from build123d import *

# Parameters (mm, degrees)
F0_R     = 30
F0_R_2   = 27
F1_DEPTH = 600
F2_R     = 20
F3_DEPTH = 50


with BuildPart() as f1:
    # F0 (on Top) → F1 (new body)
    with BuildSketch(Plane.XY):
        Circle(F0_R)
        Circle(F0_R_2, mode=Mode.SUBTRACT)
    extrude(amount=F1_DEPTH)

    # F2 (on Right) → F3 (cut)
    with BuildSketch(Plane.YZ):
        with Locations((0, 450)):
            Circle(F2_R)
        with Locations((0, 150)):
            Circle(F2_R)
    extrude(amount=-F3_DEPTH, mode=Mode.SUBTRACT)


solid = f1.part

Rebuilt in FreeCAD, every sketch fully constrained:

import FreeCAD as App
import Part
import Sketcher
from FreeCAD import Vector

doc = App.newDocument("Part")
params = doc.addObject("Spreadsheet::Sheet", "Params")
for row, (alias, value) in enumerate([
    ("sketch1_diameter", "60 mm"),
    ("sketch1_diameter2", "54 mm"),
    ("pad1_length", "600 mm"),
    ("sketch2_diameter", "40 mm"),
    ("pocket1_length", "50 mm"),
], start=1):
    params.set(f"A{row}", alias)
    params.set(f"B{row}", "=" + value)
    params.setAlias(f"B{row}", alias)

body = doc.addObject("PartDesign::Body", "Body")

# Sketch on XY plane
sketch1 = doc.addObject("Sketcher::SketchObject", "Sketch")
body.addObject(sketch1)
sketch1.AttachmentSupport = (doc.XY_Plane, [""])
sketch1.MapMode = "FlatFace"
sketch1.addGeometry([
    Part.Circle(Vector(0, 0, 0), Vector(0, 0, 1), 30),
    Part.Circle(Vector(0, 0, 0), Vector(0, 0, 1), 27),
], False)
sketch1.addConstraint([
    Sketcher.Constraint("Coincident", 0, 3, -1, 1),
    Sketcher.Constraint("Coincident", 1, 3, -1, 1),
    Sketcher.Constraint("Diameter", 0, 60.0),
    Sketcher.Constraint("Diameter", 1, 54.0),
])
sketch1.setExpression("Constraints[2]", "Params.sketch1_diameter")
sketch1.setExpression("Constraints[3]", "Params.sketch1_diameter2")
pad1 = doc.addObject("PartDesign::Pad", "Pad")
body.addObject(pad1)
pad1.Profile = sketch1
pad1.setExpression("Length", "Params.pad1_length")

# Sketch on YZ plane
sketch2 = doc.addObject("Sketcher::SketchObject", "Sketch001")
body.addObject(sketch2)
sketch2.AttachmentSupport = (doc.YZ_Plane, [""])
sketch2.MapMode = "FlatFace"
sketch2.addGeometry([
    Part.Circle(Vector(0, 450, 0), Vector(0, 0, 1), 20),
    Part.Circle(Vector(0, 150, 0), Vector(0, 0, 1), 20),
], False)
sketch2.addConstraint([
    Sketcher.Constraint("Equal", 0, 1),
    Sketcher.Constraint("PointOnObject", 0, 3, -2),
    Sketcher.Constraint("PointOnObject", 1, 3, -2),
    Sketcher.Constraint("Diameter", 0, 40.0),
    Sketcher.Constraint("DistanceY", -1, 1, 0, 3, 450.0),
    Sketcher.Constraint("DistanceY", -1, 1, 1, 3, 150.0),
])
sketch2.setExpression("Constraints[3]", "Params.sketch2_diameter")
pocket1 = doc.addObject("PartDesign::Pocket", "Pocket")
body.addObject(pocket1)
pocket1.Profile = sketch2
pocket1.setExpression("Length", "Params.pocket1_length")

doc.recompute()
